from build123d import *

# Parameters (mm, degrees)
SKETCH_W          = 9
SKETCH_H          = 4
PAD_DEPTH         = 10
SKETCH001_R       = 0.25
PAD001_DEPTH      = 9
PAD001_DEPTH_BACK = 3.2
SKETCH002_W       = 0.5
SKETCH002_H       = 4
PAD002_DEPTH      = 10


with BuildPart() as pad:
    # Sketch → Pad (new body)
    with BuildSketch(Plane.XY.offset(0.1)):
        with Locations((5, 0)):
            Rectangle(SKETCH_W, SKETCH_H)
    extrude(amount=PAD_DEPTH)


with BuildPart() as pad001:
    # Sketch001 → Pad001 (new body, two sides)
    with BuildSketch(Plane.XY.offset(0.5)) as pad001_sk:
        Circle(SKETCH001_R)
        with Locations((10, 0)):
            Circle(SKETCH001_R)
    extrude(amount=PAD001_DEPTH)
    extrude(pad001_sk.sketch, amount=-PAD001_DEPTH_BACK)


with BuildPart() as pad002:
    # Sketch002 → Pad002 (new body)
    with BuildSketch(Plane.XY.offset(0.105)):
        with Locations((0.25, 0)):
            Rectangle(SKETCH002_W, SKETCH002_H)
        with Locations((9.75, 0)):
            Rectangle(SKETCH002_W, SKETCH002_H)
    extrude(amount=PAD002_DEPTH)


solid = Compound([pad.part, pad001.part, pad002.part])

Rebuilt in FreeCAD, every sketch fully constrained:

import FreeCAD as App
import Part
import Sketcher
Q = App.Units.Quantity

doc = App.newDocument("Part")
body = doc.addObject("PartDesign::Body", "Body")

# Sketch on XY plane
sketch1 = doc.addObject("Sketcher::SketchObject", "Sketch")
body.addObject(sketch1)
sketch1.AttachmentSupport = (doc.XY_Plane, [""])
sketch1.MapMode = "FlatFace"
sketch1.AttachmentOffset = App.Placement(App.Vector(0, 0, 0.1), App.Rotation())
sketch1.addGeometry([
    Part.LineSegment(App.Vector(0.5, 2, 0), App.Vector(0.5, -2, 0)),
    Part.LineSegment(App.Vector(0.5, -2, 0), App.Vector(9.5, -2, 0)),
    Part.LineSegment(App.Vector(9.5, -2, 0), App.Vector(9.5, 2, 0)),
    Part.LineSegment(App.Vector(9.5, 2, 0), App.Vector(0.5, 2, 0)),
], False)
sketch1.addConstraint([
    Sketcher.Constraint("Coincident", 0, 2, 1, 1),
    Sketcher.Constraint("Coincident", 1, 2, 2, 1),
    Sketcher.Constraint("Coincident", 2, 2, 3, 1),
    Sketcher.Constraint("Coincident", 3, 2, 0, 1),
    Sketcher.Constraint("Vertical", 0),
    Sketcher.Constraint("Horizontal", 1),
    Sketcher.Constraint("Vertical", 2),
    Sketcher.Constraint("Horizontal", 3),
    Sketcher.Constraint("DistanceX", 1, 1, 1, 2, Q("9 mm")),
    Sketcher.Constraint("DistanceY", 0, 2, 0, 1, Q("4 mm")),
    Sketcher.Constraint("DistanceY", 0, 2, -1, 1, Q("2 mm")),
    Sketcher.Constraint("DistanceX", -1, 1, 0, 2, Q("0.5 mm")),
])
pad1 = doc.addObject("PartDesign::Pad", "Pad")
body.addObject(pad1)
pad1.Profile = sketch1
pad1.Length = 10
body2 = doc.addObject("PartDesign::Body", "Body001")
body2.AllowCompound = True

# Sketch on XY plane
sketch2 = doc.addObject("Sketcher::SketchObject", "Sketch001")
body2.addObject(sketch2)
sketch2.AttachmentSupport = (doc.getObject("XY_Plane001"), [""])
sketch2.MapMode = "FlatFace"
sketch2.AttachmentOffset = App.Placement(App.Vector(0, 0, 0.5), App.Rotation())
sketch2.addGeometry([
    Part.Circle(App.Vector(0, 0, 0), App.Vector(0, 0, 1), 0.25),
    Part.Circle(App.Vector(10, 0, 0), App.Vector(0, 0, 1), 0.25),
], False)
sketch2.addConstraint([
    Sketcher.Constraint("Coincident", 0, 3, -1, 1),
    Sketcher.Constraint("Equal", 0, 1),
    Sketcher.Constraint("PointOnObject", 1, 3, -1),
    Sketcher.Constraint("Diameter", 0, Q("0.5 mm")),
    Sketcher.Constraint("DistanceX", -1, 1, 1, 3, Q("10 mm")),
])
pad2 = doc.addObject("PartDesign::Pad", "Pad001")
body2.addObject(pad2)
pad2.Profile = sketch2
pad2.Type = "TwoLengths"
pad2.Length = 9
pad2.Length2 = 3.2
body3 = doc.addObject("PartDesign::Body", "Body002")
body3.AllowCompound = True

# Sketch on XY plane
sketch3 = doc.addObject("Sketcher::SketchObject", "Sketch002")
body3.addObject(sketch3)
sketch3.AttachmentSupport = (doc.getObject("XY_Plane002"), [""])
sketch3.MapMode = "FlatFace"
sketch3.AttachmentOffset = App.Placement(App.Vector(0, 0, 0.105), App.Rotation())
sketch3.addGeometry([
    Part.LineSegment(App.Vector(0, 2, 0), App.Vector(0, -2, 0)),  # 0
    Part.LineSegment(App.Vector(0, -2, 0), App.Vector(0.5, -2, 0)),  # 1
    Part.LineSegment(App.Vector(0.5, -2, 0), App.Vector(0.5, 2, 0)),  # 2
    Part.LineSegment(App.Vector(0.5, 2, 0), App.Vector(0, 2, 0)),  # 3
    Part.LineSegment(App.Vector(9.5, 2, 0), App.Vector(9.5, -2, 0)),  # 4
    Part.LineSegment(App.Vector(9.5, -2, 0), App.Vector(10, -2, 0)),  # 5
    Part.LineSegment(App.Vector(10, -2, 0), App.Vector(10, 2, 0)),  # 6
    Part.LineSegment(App.Vector(10, 2, 0), App.Vector(9.5, 2, 0)),  # 7
], False)
sketch3.addConstraint([
    Sketcher.Constraint("Coincident", 0, 2, 1, 1),
    Sketcher.Constraint("Coincident", 1, 2, 2, 1),
    Sketcher.Constraint("Coincident", 2, 2, 3, 1),
    Sketcher.Constraint("Coincident", 3, 2, 0, 1),
    Sketcher.Constraint("Coincident", 4, 2, 5, 1),
    Sketcher.Constraint("Coincident", 5, 2, 6, 1),
    Sketcher.Constraint("Coincident", 6, 2, 7, 1),
    Sketcher.Constraint("Coincident", 7, 2, 4, 1),
    Sketcher.Constraint("Vertical", 0),
    Sketcher.Constraint("Horizontal", 1),
    Sketcher.Constraint("Vertical", 2),
    Sketcher.Constraint("Horizontal", 3),
    Sketcher.Constraint("Vertical", 4),
    Sketcher.Constraint("Horizontal", 5),
    Sketcher.Constraint("Vertical", 6),
    Sketcher.Constraint("Horizontal", 7),
    Sketcher.Constraint("Symmetric", 0, 2, 3, 2, -1, 1),
    Sketcher.Constraint("Horizontal", 1, 2, 4, 2),
    Sketcher.Constraint("Horizontal", 3, 2, 6, 2),
    Sketcher.Constraint("Equal", 3, 5),
    Sketcher.Constraint("DistanceY", 0, 2, 0, 1, Q("4 mm")),
    Sketcher.Constraint("DistanceX", 1, 1, 1, 2, Q("0.5 mm")),
    Sketcher.Constraint("DistanceX", -1, 1, 5, 2, Q("10 mm")),
])
pad3 = doc.addObject("PartDesign::Pad", "Pad002")
body3.addObject(pad3)
pad3.Profile = sketch3
pad3.Length = 10

doc.recompute()
